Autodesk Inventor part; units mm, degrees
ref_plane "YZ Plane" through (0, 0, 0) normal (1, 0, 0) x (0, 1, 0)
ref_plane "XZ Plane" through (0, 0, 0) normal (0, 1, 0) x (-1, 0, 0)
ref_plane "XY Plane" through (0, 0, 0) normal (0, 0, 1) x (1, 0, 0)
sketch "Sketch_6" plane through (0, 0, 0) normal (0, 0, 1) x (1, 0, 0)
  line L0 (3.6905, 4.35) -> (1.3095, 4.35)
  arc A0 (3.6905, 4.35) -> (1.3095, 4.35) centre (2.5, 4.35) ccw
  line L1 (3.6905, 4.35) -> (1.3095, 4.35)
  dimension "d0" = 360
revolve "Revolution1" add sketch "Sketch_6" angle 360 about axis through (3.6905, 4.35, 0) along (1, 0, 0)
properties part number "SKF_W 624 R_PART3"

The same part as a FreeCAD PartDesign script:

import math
import FreeCAD as App
import Part
import Sketcher

doc = App.newDocument("Part")
body = doc.addObject("PartDesign::Body", "Body")

# Sketch on XY plane
sketch1 = body.newObject("Sketcher::SketchObject", "Sketch")
sketch1.AttachmentSupport = (doc.getObject("XY_Plane"), [""])
sketch1.MapMode = "FlatFace"
sketch1.addGeometry([
    Part.LineSegment(App.Vector(1.3095, 4.35, 0), App.Vector(3.6905, 4.35, 0)),
    Part.ArcOfCircle(Part.Circle(App.Vector(2.5, 4.35, 0), App.Vector(0, 0, 1), 1.1905), math.radians(0), math.radians(180)),
], False)
sketch1.addGeometry(Part.LineSegment(App.Vector(1.3095, 4.35, 0), App.Vector(3.6905, 4.35, 0)), True)  # axis
sketch1.addConstraint([
    Sketcher.Constraint("Coincident", 0, 1, 1, 2),
    Sketcher.Constraint("Coincident", 1, 1, 0, 2),
    Sketcher.Constraint("Horizontal", 0),
    Sketcher.Constraint("Horizontal", 2),
    Sketcher.Constraint("Coincident", 2, 1, 0, 1),
    Sketcher.Constraint("Horizontal", 1, 3, 0, 1),
    Sketcher.Constraint("Equal", 0, 2),
    Sketcher.Constraint("DistanceX", -1, 1, 1, 3, 2.5),
    Sketcher.Constraint("Radius", 1, 1.1905),
    Sketcher.Constraint("DistanceY", -1, 1, 1, 3, 4.35),
])
revolution = body.newObject("PartDesign::Revolution", "Revolution")
revolution.Profile = sketch1
revolution.ReferenceAxis = (sketch1, ["Axis0"])
revolution.Angle = 360

doc.recompute()
